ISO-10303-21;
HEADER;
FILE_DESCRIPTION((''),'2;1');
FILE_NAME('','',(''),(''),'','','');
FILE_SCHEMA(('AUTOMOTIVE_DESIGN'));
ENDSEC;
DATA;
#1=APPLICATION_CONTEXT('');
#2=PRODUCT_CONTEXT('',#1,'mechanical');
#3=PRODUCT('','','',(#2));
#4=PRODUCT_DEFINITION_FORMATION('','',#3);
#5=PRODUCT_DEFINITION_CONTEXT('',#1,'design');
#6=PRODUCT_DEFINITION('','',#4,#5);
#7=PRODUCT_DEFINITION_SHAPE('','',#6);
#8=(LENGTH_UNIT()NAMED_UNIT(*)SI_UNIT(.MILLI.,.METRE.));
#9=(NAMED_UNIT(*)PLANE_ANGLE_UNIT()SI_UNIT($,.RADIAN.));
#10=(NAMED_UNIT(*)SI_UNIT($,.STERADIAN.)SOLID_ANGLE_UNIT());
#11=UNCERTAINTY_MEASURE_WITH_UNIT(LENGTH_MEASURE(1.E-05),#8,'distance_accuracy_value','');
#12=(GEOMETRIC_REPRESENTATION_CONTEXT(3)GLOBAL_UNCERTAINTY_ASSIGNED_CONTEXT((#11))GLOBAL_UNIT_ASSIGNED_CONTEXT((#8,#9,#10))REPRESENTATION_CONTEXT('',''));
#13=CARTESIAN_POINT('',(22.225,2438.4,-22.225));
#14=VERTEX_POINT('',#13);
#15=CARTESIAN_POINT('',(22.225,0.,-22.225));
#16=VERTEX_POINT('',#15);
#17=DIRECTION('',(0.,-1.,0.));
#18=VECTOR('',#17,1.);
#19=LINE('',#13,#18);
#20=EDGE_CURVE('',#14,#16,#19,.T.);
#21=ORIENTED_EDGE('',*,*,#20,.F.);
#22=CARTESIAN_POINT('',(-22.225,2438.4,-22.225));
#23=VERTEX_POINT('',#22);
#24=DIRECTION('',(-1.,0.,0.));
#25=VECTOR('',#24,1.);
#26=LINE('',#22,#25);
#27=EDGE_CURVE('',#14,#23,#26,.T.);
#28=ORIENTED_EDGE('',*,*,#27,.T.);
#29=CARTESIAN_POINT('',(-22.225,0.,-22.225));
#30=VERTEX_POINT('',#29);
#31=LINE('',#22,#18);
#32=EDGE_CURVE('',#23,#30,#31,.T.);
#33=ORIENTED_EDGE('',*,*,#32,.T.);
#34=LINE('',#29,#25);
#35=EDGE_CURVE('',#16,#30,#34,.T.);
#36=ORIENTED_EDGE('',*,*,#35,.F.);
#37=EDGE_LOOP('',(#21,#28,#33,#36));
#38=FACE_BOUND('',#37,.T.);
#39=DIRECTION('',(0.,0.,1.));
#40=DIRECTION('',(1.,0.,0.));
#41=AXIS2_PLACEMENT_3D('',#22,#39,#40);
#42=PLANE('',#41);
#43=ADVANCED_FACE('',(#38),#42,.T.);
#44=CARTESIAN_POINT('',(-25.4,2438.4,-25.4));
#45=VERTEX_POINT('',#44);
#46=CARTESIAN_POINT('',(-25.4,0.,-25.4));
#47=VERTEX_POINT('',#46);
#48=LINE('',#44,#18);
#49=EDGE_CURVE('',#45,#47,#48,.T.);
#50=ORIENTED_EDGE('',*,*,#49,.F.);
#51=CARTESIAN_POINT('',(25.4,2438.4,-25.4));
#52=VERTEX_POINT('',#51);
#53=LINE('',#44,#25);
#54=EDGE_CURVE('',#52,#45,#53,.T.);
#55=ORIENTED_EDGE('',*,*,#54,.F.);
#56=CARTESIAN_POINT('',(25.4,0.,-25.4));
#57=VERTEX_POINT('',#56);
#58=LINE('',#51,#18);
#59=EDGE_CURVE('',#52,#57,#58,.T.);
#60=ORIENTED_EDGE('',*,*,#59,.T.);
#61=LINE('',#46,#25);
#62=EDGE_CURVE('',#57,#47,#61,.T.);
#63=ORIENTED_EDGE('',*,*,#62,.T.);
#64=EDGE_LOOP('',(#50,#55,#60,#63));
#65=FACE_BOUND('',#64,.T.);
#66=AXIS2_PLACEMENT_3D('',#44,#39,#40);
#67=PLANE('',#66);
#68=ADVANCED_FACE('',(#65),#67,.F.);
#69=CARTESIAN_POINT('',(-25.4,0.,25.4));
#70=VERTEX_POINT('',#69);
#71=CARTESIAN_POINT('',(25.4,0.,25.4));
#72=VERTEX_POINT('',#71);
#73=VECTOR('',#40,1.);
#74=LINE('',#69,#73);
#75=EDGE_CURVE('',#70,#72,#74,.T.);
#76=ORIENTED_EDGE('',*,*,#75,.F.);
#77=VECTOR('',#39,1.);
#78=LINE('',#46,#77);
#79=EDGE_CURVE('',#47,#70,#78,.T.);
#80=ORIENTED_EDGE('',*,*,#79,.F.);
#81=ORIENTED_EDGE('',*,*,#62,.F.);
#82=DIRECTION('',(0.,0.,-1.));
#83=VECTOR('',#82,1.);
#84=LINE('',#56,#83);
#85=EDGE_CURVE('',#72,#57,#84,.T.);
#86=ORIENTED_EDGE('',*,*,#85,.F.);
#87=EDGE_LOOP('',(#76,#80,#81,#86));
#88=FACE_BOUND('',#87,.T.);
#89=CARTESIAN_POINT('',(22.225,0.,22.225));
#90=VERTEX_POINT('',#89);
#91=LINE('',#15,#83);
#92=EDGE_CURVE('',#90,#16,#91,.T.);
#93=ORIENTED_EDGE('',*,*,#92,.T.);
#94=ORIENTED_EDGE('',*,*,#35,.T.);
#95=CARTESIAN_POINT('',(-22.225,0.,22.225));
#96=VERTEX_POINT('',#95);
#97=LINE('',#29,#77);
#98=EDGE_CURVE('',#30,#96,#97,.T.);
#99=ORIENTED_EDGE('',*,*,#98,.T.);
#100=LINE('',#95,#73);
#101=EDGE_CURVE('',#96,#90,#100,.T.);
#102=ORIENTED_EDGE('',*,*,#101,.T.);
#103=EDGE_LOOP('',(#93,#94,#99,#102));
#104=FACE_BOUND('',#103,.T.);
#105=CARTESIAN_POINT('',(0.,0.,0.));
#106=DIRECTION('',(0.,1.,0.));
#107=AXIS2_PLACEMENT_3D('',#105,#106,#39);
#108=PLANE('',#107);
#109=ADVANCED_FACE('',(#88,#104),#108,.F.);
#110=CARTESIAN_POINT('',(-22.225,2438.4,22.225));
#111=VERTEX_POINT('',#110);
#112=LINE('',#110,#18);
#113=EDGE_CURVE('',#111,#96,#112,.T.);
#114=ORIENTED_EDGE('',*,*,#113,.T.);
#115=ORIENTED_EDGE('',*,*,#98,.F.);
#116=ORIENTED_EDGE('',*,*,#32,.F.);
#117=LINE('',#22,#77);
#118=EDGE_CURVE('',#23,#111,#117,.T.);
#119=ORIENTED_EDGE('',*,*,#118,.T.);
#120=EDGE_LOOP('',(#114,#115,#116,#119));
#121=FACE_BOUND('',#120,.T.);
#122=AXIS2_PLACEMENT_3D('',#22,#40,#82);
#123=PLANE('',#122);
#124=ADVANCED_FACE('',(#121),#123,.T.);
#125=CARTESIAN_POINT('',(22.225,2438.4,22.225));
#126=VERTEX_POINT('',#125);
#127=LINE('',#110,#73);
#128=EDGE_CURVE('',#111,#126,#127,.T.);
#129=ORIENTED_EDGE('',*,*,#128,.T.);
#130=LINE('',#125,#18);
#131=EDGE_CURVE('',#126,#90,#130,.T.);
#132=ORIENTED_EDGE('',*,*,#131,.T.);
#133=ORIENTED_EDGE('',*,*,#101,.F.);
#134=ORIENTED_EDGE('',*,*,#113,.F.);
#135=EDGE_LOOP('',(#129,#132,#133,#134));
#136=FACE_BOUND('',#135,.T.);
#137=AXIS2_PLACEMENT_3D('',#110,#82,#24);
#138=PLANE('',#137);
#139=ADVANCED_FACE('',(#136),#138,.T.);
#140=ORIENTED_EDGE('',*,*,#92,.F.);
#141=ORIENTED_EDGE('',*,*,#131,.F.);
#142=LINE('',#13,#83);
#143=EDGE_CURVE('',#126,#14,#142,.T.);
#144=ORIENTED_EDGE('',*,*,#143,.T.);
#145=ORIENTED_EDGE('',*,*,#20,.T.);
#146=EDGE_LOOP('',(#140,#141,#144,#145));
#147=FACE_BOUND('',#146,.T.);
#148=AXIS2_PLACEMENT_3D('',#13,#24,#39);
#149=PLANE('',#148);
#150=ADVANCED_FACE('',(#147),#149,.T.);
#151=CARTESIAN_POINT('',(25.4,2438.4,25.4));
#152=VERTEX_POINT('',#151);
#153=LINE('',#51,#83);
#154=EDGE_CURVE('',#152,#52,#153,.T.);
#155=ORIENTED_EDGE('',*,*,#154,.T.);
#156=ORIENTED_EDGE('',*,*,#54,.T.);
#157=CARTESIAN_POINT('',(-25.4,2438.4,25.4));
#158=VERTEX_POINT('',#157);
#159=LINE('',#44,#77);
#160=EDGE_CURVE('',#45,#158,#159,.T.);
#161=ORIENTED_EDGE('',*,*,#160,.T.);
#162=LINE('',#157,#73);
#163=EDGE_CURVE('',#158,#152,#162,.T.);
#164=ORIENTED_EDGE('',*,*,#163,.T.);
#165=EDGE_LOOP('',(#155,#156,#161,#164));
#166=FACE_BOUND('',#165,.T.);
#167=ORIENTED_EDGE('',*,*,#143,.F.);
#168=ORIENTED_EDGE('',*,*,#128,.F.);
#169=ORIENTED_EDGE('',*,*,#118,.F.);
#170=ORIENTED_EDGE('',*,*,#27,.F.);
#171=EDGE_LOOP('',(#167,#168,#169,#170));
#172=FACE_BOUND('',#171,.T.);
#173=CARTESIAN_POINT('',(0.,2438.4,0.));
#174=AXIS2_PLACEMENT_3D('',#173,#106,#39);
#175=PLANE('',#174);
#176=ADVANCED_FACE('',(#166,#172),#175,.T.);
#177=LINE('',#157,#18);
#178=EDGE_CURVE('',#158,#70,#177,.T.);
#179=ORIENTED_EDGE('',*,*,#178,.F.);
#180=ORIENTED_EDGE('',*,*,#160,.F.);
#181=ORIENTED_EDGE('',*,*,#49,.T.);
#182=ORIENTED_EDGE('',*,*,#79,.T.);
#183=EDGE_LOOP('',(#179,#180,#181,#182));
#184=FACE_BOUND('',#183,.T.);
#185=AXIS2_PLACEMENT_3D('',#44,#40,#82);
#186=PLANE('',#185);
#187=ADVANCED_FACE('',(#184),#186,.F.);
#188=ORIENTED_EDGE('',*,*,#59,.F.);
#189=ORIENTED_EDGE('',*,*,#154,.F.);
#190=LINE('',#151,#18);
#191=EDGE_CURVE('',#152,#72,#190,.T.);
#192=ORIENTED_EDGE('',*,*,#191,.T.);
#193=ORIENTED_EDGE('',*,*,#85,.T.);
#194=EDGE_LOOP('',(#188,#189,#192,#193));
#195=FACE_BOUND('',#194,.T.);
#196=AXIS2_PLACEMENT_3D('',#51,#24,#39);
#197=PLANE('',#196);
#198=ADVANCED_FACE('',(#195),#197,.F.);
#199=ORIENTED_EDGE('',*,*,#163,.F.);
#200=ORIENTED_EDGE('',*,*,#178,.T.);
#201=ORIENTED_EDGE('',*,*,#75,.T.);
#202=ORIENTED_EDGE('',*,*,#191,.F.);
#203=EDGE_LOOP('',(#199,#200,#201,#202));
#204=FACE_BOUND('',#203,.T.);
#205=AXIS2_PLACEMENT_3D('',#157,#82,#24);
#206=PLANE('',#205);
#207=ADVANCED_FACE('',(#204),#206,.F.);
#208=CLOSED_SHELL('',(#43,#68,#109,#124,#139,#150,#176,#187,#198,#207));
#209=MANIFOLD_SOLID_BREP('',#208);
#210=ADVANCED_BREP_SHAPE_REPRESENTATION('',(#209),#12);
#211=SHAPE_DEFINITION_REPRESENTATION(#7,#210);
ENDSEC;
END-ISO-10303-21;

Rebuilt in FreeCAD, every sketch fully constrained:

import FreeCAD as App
import Part
import Sketcher
Q = App.Units.Quantity

doc = App.newDocument("Part")
body = doc.addObject("PartDesign::Body", "Body")

sketch1 = body.newObject("Sketcher::SketchObject", "Sketch")
sketch1.AttachmentSupport = (doc.getObject("XZ_Plane"), [""])
sketch1.MapMode = "FlatFace"
sketch1.addGeometry([
    Part.LineSegment(App.Vector(-25.4, -25.4, 0), App.Vector(-25.4, 25.4, 0)),
    Part.LineSegment(App.Vector(-25.4, 25.4, 0), App.Vector(25.4, 25.4, 0)),
    Part.LineSegment(App.Vector(25.4, 25.4, 0), App.Vector(25.4, -25.4, 0)),
    Part.LineSegment(App.Vector(25.4, -25.4, 0), App.Vector(-25.4, -25.4, 0)),
    Part.LineSegment(App.Vector(22.225, 22.225, 0), App.Vector(-22.225, 22.225, 0)),
    Part.LineSegment(App.Vector(-22.225, 22.225, 0), App.Vector(-22.225, -22.225, 0)),
    Part.LineSegment(App.Vector(-22.225, -22.225, 0), App.Vector(22.225, -22.225, 0)),
    Part.LineSegment(App.Vector(22.225, -22.225, 0), App.Vector(22.225, 22.225, 0)),
], False)
sketch1.addConstraint([
    Sketcher.Constraint("Coincident", 0, 2, 1, 1),
    Sketcher.Constraint("Coincident", 1, 2, 2, 1),
    Sketcher.Constraint("Coincident", 2, 2, 3, 1),
    Sketcher.Constraint("Coincident", 3, 2, 0, 1),
    Sketcher.Constraint("Coincident", 4, 2, 5, 1),
    Sketcher.Constraint("Coincident", 5, 2, 6, 1),
    Sketcher.Constraint("Coincident", 6, 2, 7, 1),
    Sketcher.Constraint("Coincident", 7, 2, 4, 1),
    Sketcher.Constraint("Vertical", 0),
    Sketcher.Constraint("Horizontal", 1),
    Sketcher.Constraint("Vertical", 2),
    Sketcher.Constraint("Horizontal", 3),
    Sketcher.Constraint("Horizontal", 4),
    Sketcher.Constraint("Vertical", 5),
    Sketcher.Constraint("Horizontal", 6),
    Sketcher.Constraint("Vertical", 7),
    Sketcher.Constraint("Symmetric", 0, 2, 2, 2, -1, 1),
    Sketcher.Constraint("Symmetric", 4, 2, 6, 2, -1, 1),
    Sketcher.Constraint("Equal", 3, 0),
    Sketcher.Constraint("Equal", 6, 5),
    Sketcher.Constraint("DistanceX", 1, 1, 1, 2, Q("2 in")),
    Sketcher.Constraint("DistanceX", 4, 2, 4, 1, Q("1.75 in")),
])
pad1 = body.newObject("PartDesign::Pad", "Pad")
pad1.Profile = sketch1
pad1.Length = Q("96 in")
pad1.Reversed = True

doc.recompute()
